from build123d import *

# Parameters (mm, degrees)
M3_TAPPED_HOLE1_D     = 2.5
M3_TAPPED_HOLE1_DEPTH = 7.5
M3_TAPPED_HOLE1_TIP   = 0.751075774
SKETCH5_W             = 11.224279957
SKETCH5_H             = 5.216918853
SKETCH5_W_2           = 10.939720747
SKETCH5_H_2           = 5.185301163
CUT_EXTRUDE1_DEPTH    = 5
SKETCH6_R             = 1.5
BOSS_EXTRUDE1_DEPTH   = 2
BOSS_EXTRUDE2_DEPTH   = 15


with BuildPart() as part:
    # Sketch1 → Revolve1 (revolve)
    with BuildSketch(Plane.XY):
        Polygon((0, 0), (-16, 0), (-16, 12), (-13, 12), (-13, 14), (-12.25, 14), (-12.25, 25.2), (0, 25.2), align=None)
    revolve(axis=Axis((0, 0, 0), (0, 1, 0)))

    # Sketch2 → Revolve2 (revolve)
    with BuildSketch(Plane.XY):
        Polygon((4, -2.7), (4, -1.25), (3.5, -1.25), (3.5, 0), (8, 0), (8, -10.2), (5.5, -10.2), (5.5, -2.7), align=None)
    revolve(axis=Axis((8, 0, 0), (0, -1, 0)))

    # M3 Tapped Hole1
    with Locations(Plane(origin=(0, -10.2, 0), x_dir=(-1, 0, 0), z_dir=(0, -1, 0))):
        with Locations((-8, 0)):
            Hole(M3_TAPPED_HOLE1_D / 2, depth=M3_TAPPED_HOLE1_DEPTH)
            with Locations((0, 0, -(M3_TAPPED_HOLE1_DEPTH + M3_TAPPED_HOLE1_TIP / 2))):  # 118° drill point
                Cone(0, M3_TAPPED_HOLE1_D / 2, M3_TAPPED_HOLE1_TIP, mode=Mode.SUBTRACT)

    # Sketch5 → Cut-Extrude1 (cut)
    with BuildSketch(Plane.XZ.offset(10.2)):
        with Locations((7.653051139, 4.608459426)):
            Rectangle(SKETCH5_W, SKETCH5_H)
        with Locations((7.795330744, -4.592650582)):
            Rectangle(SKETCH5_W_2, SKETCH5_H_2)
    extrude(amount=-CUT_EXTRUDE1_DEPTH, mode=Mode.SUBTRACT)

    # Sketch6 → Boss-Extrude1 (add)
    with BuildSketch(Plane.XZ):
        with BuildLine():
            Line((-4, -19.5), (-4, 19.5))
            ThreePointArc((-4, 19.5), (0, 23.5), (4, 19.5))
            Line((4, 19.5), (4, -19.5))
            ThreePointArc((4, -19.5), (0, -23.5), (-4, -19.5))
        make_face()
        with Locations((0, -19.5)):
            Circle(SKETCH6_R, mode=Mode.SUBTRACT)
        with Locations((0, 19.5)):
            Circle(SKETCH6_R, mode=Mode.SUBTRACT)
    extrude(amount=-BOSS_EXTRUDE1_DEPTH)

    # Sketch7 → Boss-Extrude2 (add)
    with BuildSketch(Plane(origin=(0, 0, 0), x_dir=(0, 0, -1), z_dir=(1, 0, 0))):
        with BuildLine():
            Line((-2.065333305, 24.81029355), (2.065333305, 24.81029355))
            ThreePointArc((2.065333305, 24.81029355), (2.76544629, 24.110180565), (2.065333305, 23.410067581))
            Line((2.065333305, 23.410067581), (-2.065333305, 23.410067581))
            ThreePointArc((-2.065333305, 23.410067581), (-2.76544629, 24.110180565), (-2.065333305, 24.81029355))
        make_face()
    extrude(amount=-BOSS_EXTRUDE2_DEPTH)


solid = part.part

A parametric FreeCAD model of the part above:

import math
import FreeCAD as App
import Part
import Sketcher
Q = App.Units.Quantity

doc = App.newDocument("Part")
body = doc.addObject("PartDesign::Body", "Body")

sketch1 = body.newObject("Sketcher::SketchObject", "Sketch")
sketch1.AttachmentSupport = (doc.getObject("XY_Plane"), [""])
sketch1.MapMode = "FlatFace"
sketch1.addGeometry(Part.LineSegment(App.Vector(-16, 0, 0), App.Vector(0, 0, 0)), False)
sketch1.addGeometry(Part.LineSegment(App.Vector(0, 0, 0), App.Vector(0, 25.2, 0)), False)
sketch1.addGeometry(Part.LineSegment(App.Vector(0, 25.2, 0), App.Vector(-12.2, 25.2, 0)), False)
sketch1.addGeometry(Part.LineSegment(App.Vector(-12.2, 25.2, 0), App.Vector(-12.2, 14, 0)), False)
sketch1.addGeometry(Part.LineSegment(App.Vector(-12.2, 14, 0), App.Vector(-13, 14, 0)), False)
sketch1.addGeometry(Part.LineSegment(App.Vector(-13, 14, 0), App.Vector(-13, 12, 0)), False)
sketch1.addGeometry(Part.LineSegment(App.Vector(-13, 12, 0), App.Vector(-16, 12, 0)), False)
sketch1.addGeometry(Part.LineSegment(App.Vector(-16, 12, 0), App.Vector(-16, 0, 0)), False)
sketch1.addConstraint(Sketcher.Constraint("Coincident", 0, 2, 1, 1))
sketch1.addConstraint(Sketcher.Constraint("Coincident", 1, 2, 2, 1))
sketch1.addConstraint(Sketcher.Constraint("Coincident", 2, 2, 3, 1))
sketch1.addConstraint(Sketcher.Constraint("Coincident", 3, 2, 4, 1))
sketch1.addConstraint(Sketcher.Constraint("Coincident", 4, 2, 5, 1))
sketch1.addConstraint(Sketcher.Constraint("Coincident", 5, 2, 6, 1))
sketch1.addConstraint(Sketcher.Constraint("Coincident", 6, 2, 7, 1))
sketch1.addConstraint(Sketcher.Constraint("Coincident", 7, 2, 0, 1))
sketch1.addConstraint(Sketcher.Constraint("Horizontal", 0))
sketch1.addConstraint(Sketcher.Constraint("Vertical", 1))
sketch1.addConstraint(Sketcher.Constraint("Horizontal", 2))
sketch1.addConstraint(Sketcher.Constraint("Vertical", 3))
sketch1.addConstraint(Sketcher.Constraint("Horizontal", 4))
sketch1.addConstraint(Sketcher.Constraint("Vertical", 5))
sketch1.addConstraint(Sketcher.Constraint("Horizontal", 6))
sketch1.addConstraint(Sketcher.Constraint("Vertical", 7))
sketch1.addConstraint(Sketcher.Constraint("Coincident", 0, 2, -1, 1))
sketch1.addConstraint(Sketcher.Constraint("DistanceX", 0, 1, 0, 2, Q("16 mm")))
sketch1.addConstraint(Sketcher.Constraint("DistanceX", 6, 2, 6, 1, Q("3 mm")))
sketch1.addConstraint(Sketcher.Constraint("DistanceY", 5, 2, 5, 1, Q("2 mm")))
sketch1.addConstraint(Sketcher.Constraint("DistanceY", 7, 2, 7, 1, Q("12 mm")))
sketch1.addConstraint(Sketcher.Constraint("DistanceY", 1, 1, 1, 2, Q("25.2 mm")))
sketch1.addConstraint(Sketcher.Constraint("DistanceX", 2, 2, 2, 1, Q("12.25 mm")))
revolution = body.newObject("PartDesign::Revolution", "Revolution")
revolution.Profile = sketch1
revolution.ReferenceAxis = (sketch1, ["V_Axis"])
revolution.Angle = 360

sketch2 = body.newObject("Sketcher::SketchObject", "Sketch001")
sketch2.AttachmentSupport = (doc.getObject("XY_Plane"), [""])
sketch2.MapMode = "FlatFace"
sketch2.addGeometry(Part.LineSegment(App.Vector(4, -1.2, 0), App.Vector(4, -2.7, 0)), False)
sketch2.addGeometry(Part.LineSegment(App.Vector(4, -2.7, 0), App.Vector(5.5, -2.7, 0)), False)
sketch2.addGeometry(Part.LineSegment(App.Vector(5.5, -2.7, 0), App.Vector(5.5, -10.2, 0)), False)
sketch2.addGeometry(Part.LineSegment(App.Vector(5.5, -10.2, 0), App.Vector(8, -10.2, 0)), False)
sketch2.addGeometry(Part.LineSegment(App.Vector(8, -10.2, 0), App.Vector(8, 0, 0)), False)
sketch2.addGeometry(Part.LineSegment(App.Vector(8, 0, 0), App.Vector(3.5, 0, 0)), False)
sketch2.addGeometry(Part.LineSegment(App.Vector(3.5, 0, 0), App.Vector(3.5, -1.2, 0)), False)
sketch2.addGeometry(Part.LineSegment(App.Vector(3.5, -1.2, 0), App.Vector(4, -1.2, 0)), False)
sketch2.addGeometry(Part.LineSegment(App.Vector(8, 0, 0), App.Vector(8, -10.2, 0)), True)
sketch2.addConstraint(Sketcher.Constraint("Coincident", 0, 2, 1, 1))
sketch2.addConstraint(Sketcher.Constraint("Coincident", 1, 2, 2, 1))
sketch2.addConstraint(Sketcher.Constraint("Coincident", 2, 2, 3, 1))
sketch2.addConstraint(Sketcher.Constraint("Coincident", 3, 2, 4, 1))
sketch2.addConstraint(Sketcher.Constraint("Coincident", 4, 2, 5, 1))
sketch2.addConstraint(Sketcher.Constraint("Coincident", 5, 2, 6, 1))
sketch2.addConstraint(Sketcher.Constraint("Coincident", 6, 2, 7, 1))
sketch2.addConstraint(Sketcher.Constraint("Coincident", 7, 2, 0, 1))
sketch2.addConstraint(Sketcher.Constraint("Vertical", 0))
sketch2.addConstraint(Sketcher.Constraint("Horizontal", 1))
sketch2.addConstraint(Sketcher.Constraint("Vertical", 2))
sketch2.addConstraint(Sketcher.Constraint("Horizontal", 3))
sketch2.addConstraint(Sketcher.Constraint("Vertical", 4))
sketch2.addConstraint(Sketcher.Constraint("Horizontal", 5))
sketch2.addConstraint(Sketcher.Constraint("Vertical", 6))
sketch2.addConstraint(Sketcher.Constraint("Horizontal", 7))
sketch2.addConstraint(Sketcher.Constraint("Vertical", 8))
sketch2.addConstraint(Sketcher.Constraint("Coincident", 8, 1, 4, 2))
sketch2.addConstraint(Sketcher.Constraint("PointOnObject", 4, 2, -1))
sketch2.addConstraint(Sketcher.Constraint("Horizontal", 2, 2, 8, 2))
sketch2.addConstraint(Sketcher.Constraint("DistanceX", 1, 1, 1, 2, Q("1.5 mm")))
sketch2.addConstraint(Sketcher.Constraint("DistanceX", 3, 1, 3, 2, Q("2.5 mm")))
sketch2.addConstraint(Sketcher.Constraint("DistanceX", 5, 2, 5, 1, Q("4.5 mm")))
sketch2.addConstraint(Sketcher.Constraint("DistanceY", 2, 2, 2, 1, Q("7.5 mm")))
sketch2.addConstraint(Sketcher.Constraint("DistanceY", 4, 1, 4, 2, Q("10.2 mm")))
sketch2.addConstraint(Sketcher.Constraint("DistanceX", -1, 1, 0, 2, Q("4 mm")))
sketch2.addConstraint(Sketcher.Constraint("DistanceY", 0, 2, 0, 1, Q("1.45 mm")))
revolution2 = body.newObject("PartDesign::Revolution", "Revolution001")
revolution2.Profile = sketch2
revolution2.ReferenceAxis = (sketch2, ["Axis0"])
revolution2.Angle = 360

sketch3 = body.newObject("Sketcher::SketchObject", "Sketch002")
sketch3.AttachmentSupport = (doc.getObject("XZ_Plane"), [""])
sketch3.MapMode = "FlatFace"
sketch3.AttachmentOffset = App.Placement(App.Vector(0, 0, 10.2), App.Rotation())
sketch3.addGeometry(Part.Circle(App.Vector(8, 0, 0), App.Vector(0, 0, 1), 1.2), False)
sketch3.addConstraint(Sketcher.Constraint("PointOnObject", 0, 3, -1))
sketch3.addConstraint(Sketcher.Constraint("Diameter", 0, Q("2.5 mm")))
sketch3.addConstraint(Sketcher.Constraint("DistanceX", -1, 1, 0, 3, Q("8 mm")))
doc.recompute()
hole = body.newObject("PartDesign::Hole", "Hole")
hole.Profile = sketch3
hole.ThreadType = "None"
hole.Diameter = 2.5
hole.DepthType = "Dimension"
hole.Depth = 7.5
hole.DrillPoint = "Angled"
hole.DrillPointAngle = 118

sketch4 = body.newObject("Sketcher::SketchObject", "Sketch003")
sketch4.AttachmentSupport = (doc.getObject("XZ_Plane"), [""])
sketch4.MapMode = "FlatFace"
sketch4.AttachmentOffset = App.Placement(App.Vector(0, 0, 10.2), App.Rotation())
sketch4.addGeometry(Part.LineSegment(App.Vector(2, 7, 0), App.Vector(2, 2, 0)), False)
sketch4.addGeometry(Part.LineSegment(App.Vector(2, 2, 0), App.Vector(13, 2, 0)), False)
sketch4.addGeometry(Part.LineSegment(App.Vector(13, 2, 0), App.Vector(13, 7, 0)), False)
sketch4.addGeometry(Part.LineSegment(App.Vector(13, 7, 0), App.Vector(2, 7, 0)), False)
sketch4.addGeometry(Part.LineSegment(App.Vector(2, -2, 0), App.Vector(2, -7, 0)), False)
sketch4.addGeometry(Part.LineSegment(App.Vector(2, -7, 0), App.Vector(13, -7, 0)), False)
sketch4.addGeometry(Part.LineSegment(App.Vector(13, -7, 0), App.Vector(13, -2, 0)), False)
sketch4.addGeometry(Part.LineSegment(App.Vector(13, -2, 0), App.Vector(2, -2, 0)), False)
sketch4.addConstraint(Sketcher.Constraint("Coincident", 0, 2, 1, 1))
sketch4.addConstraint(Sketcher.Constraint("Coincident", 1, 2, 2, 1))
sketch4.addConstraint(Sketcher.Constraint("Coincident", 2, 2, 3, 1))
sketch4.addConstraint(Sketcher.Constraint("Coincident", 3, 2, 0, 1))
sketch4.addConstraint(Sketcher.Constraint("Coincident", 4, 2, 5, 1))
sketch4.addConstraint(Sketcher.Constraint("Coincident", 5, 2, 6, 1))
sketch4.addConstraint(Sketcher.Constraint("Coincident", 6, 2, 7, 1))
sketch4.addConstraint(Sketcher.Constraint("Coincident", 7, 2, 4, 1))
sketch4.addConstraint(Sketcher.Constraint("Vertical", 0))
sketch4.addConstraint(Sketcher.Constraint("Horizontal", 1))
sketch4.addConstraint(Sketcher.Constraint("Vertical", 2))
sketch4.addConstraint(Sketcher.Constraint("Horizontal", 3))
sketch4.addConstraint(Sketcher.Constraint("Vertical", 4))
sketch4.addConstraint(Sketcher.Constraint("Horizontal", 5))
sketch4.addConstraint(Sketcher.Constraint("Vertical", 6))
sketch4.addConstraint(Sketcher.Constraint("Horizontal", 7))
sketch4.addConstraint(Sketcher.Constraint("Symmetric", 1, 2, 6, 2, -1))
sketch4.addConstraint(Sketcher.Constraint("DistanceY", -1, 1, 0, 2, Q("2 mm")))
sketch4.addConstraint(Sketcher.Constraint("DistanceY", 4, 2, 4, 1, Q("5.185301 mm")))
sketch4.addConstraint(Sketcher.Constraint("DistanceX", 1, 1, 1, 2, Q("11.22428 mm")))
sketch4.addConstraint(Sketcher.Constraint("DistanceX", 5, 1, 5, 2, Q("10.939721 mm")))
sketch4.addConstraint(Sketcher.Constraint("DistanceY", 0, 2, 0, 1, Q("5.216919 mm")))
sketch4.addConstraint(Sketcher.Constraint("DistanceX", -1, 1, 0, 2, Q("2.040911 mm")))
pocket1 = body.newObject("PartDesign::Pocket", "Pocket")
pocket1.Profile = sketch4
pocket1.Length = 5

sketch5 = body.newObject("Sketcher::SketchObject", "Sketch004")
sketch5.AttachmentSupport = (doc.getObject("XZ_Plane"), [""])
sketch5.MapMode = "FlatFace"
sketch5.addGeometry(Part.LineSegment(App.Vector(-4, 19.5, 0), App.Vector(-4, -19.5, 0)), False)
sketch5.addGeometry(Part.ArcOfCircle(Part.Circle(App.Vector(0, -19.5, 0), App.Vector(0, 0, 1), 4), math.radians(180), math.radians(360)), False)
sketch5.addGeometry(Part.LineSegment(App.Vector(4, -19.5, 0), App.Vector(4, 19.5, 0)), False)
sketch5.addGeometry(Part.ArcOfCircle(Part.Circle(App.Vector(0, 19.5, 0), App.Vector(0, 0, 1), 4), math.radians(0), math.radians(180)), False)
sketch5.addGeometry(Part.Circle(App.Vector(0, -19.5, 0), App.Vector(0, 0, 1), 1.5), False)
sketch5.addGeometry(Part.Circle(App.Vector(0, 19.5, 0), App.Vector(0, 0, 1), 1.5), False)
sketch5.addConstraint(Sketcher.Constraint("Tangent", 0, 2, 1, 1))
sketch5.addConstraint(Sketcher.Constraint("Tangent", 1, 2, 2, 1))
sketch5.addConstraint(Sketcher.Constraint("Tangent", 2, 2, 3, 1))
sketch5.addConstraint(Sketcher.Constraint("Tangent", 3, 2, 0, 1))
sketch5.addConstraint(Sketcher.Constraint("Vertical", 0))
sketch5.addConstraint(Sketcher.Constraint("Vertical", 2))
sketch5.addConstraint(Sketcher.Constraint("Coincident", 4, 3, 1, 3))
sketch5.addConstraint(Sketcher.Constraint("Coincident", 5, 3, 3, 3))
sketch5.addConstraint(Sketcher.Constraint("Equal", 4, 5))
sketch5.addConstraint(Sketcher.Constraint("Symmetric", 1, 3, 3, 3, -1, 1))
sketch5.addConstraint(Sketcher.Constraint("Diameter", 4, Q("3 mm")))
sketch5.addConstraint(Sketcher.Constraint("Radius", 1, Q("4 mm")))
sketch5.addConstraint(Sketcher.Constraint("DistanceY", 0, 2, 0, 1, Q("39 mm")))
pad1 = body.newObject("PartDesign::Pad", "Pad")
pad1.Profile = sketch5
pad1.Length = 2
pad1.Reversed = True

sketch6 = body.newObject("Sketcher::SketchObject", "Sketch005")
sketch6.AttachmentSupport = (doc.getObject("YZ_Plane"), [""])
sketch6.MapMode = "FlatFace"
sketch6.addGeometry(Part.LineSegment(App.Vector(24.8, -2.1, 0), App.Vector(24.8, 2.1, 0)), False)
sketch6.addGeometry(Part.ArcOfCircle(Part.Circle(App.Vector(24.1, 2.1, 0), App.Vector(0, 0, 1), 0.7), math.radians(0), math.radians(180)), False)
sketch6.addGeometry(Part.LineSegment(App.Vector(23.4, 2.1, 0), App.Vector(23.4, -2.1, 0)), False)
sketch6.addGeometry(Part.ArcOfCircle(Part.Circle(App.Vector(24.1, -2.1, 0), App.Vector(0, 0, 1), 0.7), math.radians(180), math.radians(360)), False)
sketch6.addConstraint(Sketcher.Constraint("Tangent", 0, 2, 1, 1))
sketch6.addConstraint(Sketcher.Constraint("Tangent", 1, 2, 2, 1))
sketch6.addConstraint(Sketcher.Constraint("Tangent", 2, 2, 3, 1))
sketch6.addConstraint(Sketcher.Constraint("Tangent", 3, 2, 0, 1))
sketch6.addConstraint(Sketcher.Constraint("Vertical", 0))
sketch6.addConstraint(Sketcher.Constraint("Vertical", 2))
sketch6.addConstraint(Sketcher.Constraint("Radius", 1, Q("0.700113 mm")))
sketch6.addConstraint(Sketcher.Constraint("DistanceY", 0, 1, 0, 2, Q("4.130667 mm")))
sketch6.addConstraint(Sketcher.Constraint("DistanceX", -1, 1, 1, 3, Q("24.110181 mm")))
sketch6.addConstraint(Sketcher.Constraint("DistanceY", -1, 1, 1, 3, Q("2.065333 mm")))
pad2 = body.newObject("PartDesign::Pad", "Pad001")
pad2.Profile = sketch6
pad2.Length = 15
pad2.Reversed = True

doc.recompute()
